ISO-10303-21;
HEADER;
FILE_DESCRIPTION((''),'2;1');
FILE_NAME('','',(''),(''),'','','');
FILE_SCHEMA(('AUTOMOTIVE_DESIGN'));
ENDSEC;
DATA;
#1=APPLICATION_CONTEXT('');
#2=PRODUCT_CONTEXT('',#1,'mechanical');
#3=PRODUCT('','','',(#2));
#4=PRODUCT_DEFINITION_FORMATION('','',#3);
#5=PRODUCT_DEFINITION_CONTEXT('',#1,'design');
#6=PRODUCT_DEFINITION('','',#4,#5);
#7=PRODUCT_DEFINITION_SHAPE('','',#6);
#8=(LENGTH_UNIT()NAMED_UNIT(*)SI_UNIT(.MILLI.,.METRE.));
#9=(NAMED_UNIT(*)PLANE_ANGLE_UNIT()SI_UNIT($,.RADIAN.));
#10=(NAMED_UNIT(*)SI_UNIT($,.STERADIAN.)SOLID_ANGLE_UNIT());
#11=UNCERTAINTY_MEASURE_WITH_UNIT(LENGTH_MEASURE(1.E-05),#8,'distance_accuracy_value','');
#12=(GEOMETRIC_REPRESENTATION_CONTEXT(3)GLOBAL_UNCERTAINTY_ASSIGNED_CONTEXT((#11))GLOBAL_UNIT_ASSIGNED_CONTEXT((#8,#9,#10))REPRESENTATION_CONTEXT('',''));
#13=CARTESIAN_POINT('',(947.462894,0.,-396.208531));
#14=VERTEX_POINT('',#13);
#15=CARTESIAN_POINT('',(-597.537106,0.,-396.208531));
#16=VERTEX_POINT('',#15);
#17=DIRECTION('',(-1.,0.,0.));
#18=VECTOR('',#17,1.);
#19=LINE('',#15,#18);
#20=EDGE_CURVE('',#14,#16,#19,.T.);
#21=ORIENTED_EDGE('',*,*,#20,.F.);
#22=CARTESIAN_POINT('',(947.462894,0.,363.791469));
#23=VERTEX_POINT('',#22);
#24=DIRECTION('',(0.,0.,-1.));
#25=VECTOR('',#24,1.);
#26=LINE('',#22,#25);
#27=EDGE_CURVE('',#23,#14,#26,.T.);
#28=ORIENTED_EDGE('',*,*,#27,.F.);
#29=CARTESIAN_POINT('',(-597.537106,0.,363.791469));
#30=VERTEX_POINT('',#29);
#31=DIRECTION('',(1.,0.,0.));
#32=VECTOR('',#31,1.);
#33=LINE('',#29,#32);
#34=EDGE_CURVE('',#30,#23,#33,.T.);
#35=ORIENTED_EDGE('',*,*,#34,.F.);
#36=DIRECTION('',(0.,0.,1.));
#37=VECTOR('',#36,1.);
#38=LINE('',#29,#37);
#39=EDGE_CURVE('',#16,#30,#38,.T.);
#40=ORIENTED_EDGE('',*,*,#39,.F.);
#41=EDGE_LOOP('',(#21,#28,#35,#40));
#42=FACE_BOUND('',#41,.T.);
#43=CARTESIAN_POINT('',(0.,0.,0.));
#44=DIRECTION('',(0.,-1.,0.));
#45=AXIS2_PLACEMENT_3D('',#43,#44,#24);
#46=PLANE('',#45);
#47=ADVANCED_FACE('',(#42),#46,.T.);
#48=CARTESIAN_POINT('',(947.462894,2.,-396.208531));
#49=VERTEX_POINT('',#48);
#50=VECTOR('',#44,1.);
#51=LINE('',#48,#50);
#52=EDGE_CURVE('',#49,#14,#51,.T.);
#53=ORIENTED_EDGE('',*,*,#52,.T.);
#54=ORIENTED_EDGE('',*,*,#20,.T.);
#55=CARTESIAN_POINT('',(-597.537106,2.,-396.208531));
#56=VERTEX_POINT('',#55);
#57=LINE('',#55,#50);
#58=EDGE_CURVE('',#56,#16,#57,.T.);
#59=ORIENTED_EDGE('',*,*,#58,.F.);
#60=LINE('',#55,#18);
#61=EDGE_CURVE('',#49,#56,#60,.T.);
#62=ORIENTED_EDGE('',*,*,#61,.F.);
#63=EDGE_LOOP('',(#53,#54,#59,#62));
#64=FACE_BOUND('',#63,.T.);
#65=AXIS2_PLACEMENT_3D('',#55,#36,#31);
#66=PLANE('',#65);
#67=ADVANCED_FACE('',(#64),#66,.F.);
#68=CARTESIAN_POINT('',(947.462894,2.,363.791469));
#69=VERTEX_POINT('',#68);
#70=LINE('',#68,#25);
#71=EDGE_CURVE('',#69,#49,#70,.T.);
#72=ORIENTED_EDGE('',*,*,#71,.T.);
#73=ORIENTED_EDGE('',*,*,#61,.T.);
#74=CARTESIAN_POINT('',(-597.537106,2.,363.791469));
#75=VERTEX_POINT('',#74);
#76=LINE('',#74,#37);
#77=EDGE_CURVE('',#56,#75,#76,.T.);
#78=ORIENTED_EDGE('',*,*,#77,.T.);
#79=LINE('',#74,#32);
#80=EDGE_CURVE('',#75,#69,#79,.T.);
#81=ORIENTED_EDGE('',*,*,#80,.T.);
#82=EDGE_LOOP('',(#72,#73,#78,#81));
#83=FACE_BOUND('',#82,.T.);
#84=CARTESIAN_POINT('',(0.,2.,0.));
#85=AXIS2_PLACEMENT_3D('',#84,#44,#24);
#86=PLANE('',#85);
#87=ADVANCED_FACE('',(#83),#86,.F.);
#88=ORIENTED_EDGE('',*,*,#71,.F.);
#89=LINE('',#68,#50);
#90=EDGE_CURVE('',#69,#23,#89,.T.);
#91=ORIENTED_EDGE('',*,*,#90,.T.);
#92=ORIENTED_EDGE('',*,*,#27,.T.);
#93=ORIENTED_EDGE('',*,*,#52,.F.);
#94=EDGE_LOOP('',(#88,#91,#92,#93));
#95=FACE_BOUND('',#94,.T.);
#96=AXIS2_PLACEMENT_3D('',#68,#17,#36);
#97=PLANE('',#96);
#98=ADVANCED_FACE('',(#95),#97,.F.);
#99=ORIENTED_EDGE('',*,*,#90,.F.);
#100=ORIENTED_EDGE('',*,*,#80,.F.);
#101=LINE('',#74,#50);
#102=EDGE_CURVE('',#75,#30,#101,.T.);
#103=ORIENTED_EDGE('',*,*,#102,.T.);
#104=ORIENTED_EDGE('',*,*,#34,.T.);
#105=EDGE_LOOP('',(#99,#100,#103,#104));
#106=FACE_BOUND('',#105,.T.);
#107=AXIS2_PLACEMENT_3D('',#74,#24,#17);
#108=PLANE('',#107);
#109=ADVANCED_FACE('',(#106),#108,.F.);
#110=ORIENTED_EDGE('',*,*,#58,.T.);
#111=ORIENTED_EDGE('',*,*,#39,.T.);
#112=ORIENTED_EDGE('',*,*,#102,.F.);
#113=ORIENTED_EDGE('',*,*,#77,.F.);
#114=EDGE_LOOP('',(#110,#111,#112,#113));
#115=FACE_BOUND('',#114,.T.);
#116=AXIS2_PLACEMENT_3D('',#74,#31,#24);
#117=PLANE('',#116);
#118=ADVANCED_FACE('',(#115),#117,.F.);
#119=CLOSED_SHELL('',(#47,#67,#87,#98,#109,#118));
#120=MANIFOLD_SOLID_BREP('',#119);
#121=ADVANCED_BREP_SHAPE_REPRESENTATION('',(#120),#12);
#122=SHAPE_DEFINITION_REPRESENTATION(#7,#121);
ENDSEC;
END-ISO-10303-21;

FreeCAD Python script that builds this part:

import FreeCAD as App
import Part
import Sketcher

V = App.Vector

doc = App.newDocument("Part")
body = doc.addObject("PartDesign::Body", "Body")

# Sketch on XZ plane
sketch1 = body.newObject("Sketcher::SketchObject", "Sketch")
sketch1.AttachmentSupport = (doc.getObject("XZ_Plane"), [""])
sketch1.MapMode = "FlatFace"
sketch1.addGeometry([
    Part.LineSegment(V(-597.537106, -396.208531, 0), V(-597.537106, 363.791469, 0)),
    Part.LineSegment(V(-597.537106, 363.791469, 0), V(947.462894, 363.791469, 0)),
    Part.LineSegment(V(947.462894, 363.791469, 0), V(947.462894, -396.208531, 0)),
    Part.LineSegment(V(947.462894, -396.208531, 0), V(-597.537106, -396.208531, 0)),
], False)
sketch1.addConstraint([
    Sketcher.Constraint("Coincident", 0, 2, 1, 1),
    Sketcher.Constraint("Coincident", 1, 2, 2, 1),
    Sketcher.Constraint("Coincident", 2, 2, 3, 1),
    Sketcher.Constraint("Coincident", 3, 2, 0, 1),
    Sketcher.Constraint("Vertical", 0),
    Sketcher.Constraint("Horizontal", 1),
    Sketcher.Constraint("Vertical", 2),
    Sketcher.Constraint("Horizontal", 3),
    Sketcher.Constraint("DistanceX", 1, 1, 1, 2, 1545.0),
    Sketcher.Constraint("DistanceY", 0, 1, 0, 2, 760.0),
    Sketcher.Constraint("DistanceY", -1, 1, 0, 2, 363.791469),
    Sketcher.Constraint("DistanceX", 0, 2, -1, 1, 597.537106),
])
pad1 = body.newObject("PartDesign::Pad", "Pad")
pad1.Profile = sketch1
pad1.Length = 2
pad1.Reversed = True

doc.recompute()
